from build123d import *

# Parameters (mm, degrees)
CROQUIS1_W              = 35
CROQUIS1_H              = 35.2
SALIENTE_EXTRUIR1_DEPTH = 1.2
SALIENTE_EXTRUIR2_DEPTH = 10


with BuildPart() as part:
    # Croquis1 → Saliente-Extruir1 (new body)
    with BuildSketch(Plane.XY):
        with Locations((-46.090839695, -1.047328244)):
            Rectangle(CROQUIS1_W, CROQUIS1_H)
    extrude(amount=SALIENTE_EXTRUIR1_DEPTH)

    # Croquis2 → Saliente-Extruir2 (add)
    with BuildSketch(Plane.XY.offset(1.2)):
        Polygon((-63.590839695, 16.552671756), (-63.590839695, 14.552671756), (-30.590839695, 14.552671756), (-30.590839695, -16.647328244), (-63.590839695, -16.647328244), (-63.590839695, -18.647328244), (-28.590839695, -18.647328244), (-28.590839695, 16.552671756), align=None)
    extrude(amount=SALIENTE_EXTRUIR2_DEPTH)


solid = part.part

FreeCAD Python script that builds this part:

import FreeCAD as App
import Part
import Sketcher

V = App.Vector

doc = App.newDocument("Part")
params = doc.addObject("Spreadsheet::Sheet", "Params")
for row, (alias, value) in enumerate([
    ("sketch1_width", "35 mm"),
    ("sketch1_height", "35.2 mm"),
    ("pad1_length", "1.2 mm"),
    ("sketch2_width", "33 mm"),
    ("sketch2_width2", "35 mm"),
    ("sketch2_height", "2 mm"),
    ("sketch2_height2", "31.2 mm"),
    ("pad2_length", "10 mm"),
], start=1):
    params.set(f"A{row}", alias)
    params.set(f"B{row}", "=" + value)
    params.setAlias(f"B{row}", alias)

body = doc.addObject("PartDesign::Body", "Body")

sketch1 = body.newObject("Sketcher::SketchObject", "Sketch")
sketch1.AttachmentSupport = (doc.getObject("XY_Plane"), [""])
sketch1.MapMode = "FlatFace"
sketch1.addGeometry([
    Part.LineSegment(V(-64, 17, 0), V(-64, -19, 0)),
    Part.LineSegment(V(-64, -19, 0), V(-29, -19, 0)),
    Part.LineSegment(V(-29, -19, 0), V(-29, 17, 0)),
    Part.LineSegment(V(-29, 17, 0), V(-64, 17, 0)),
], False)
sketch1.addConstraint([
    Sketcher.Constraint("Coincident", 0, 2, 1, 1),
    Sketcher.Constraint("Coincident", 1, 2, 2, 1),
    Sketcher.Constraint("Coincident", 2, 2, 3, 1),
    Sketcher.Constraint("Coincident", 3, 2, 0, 1),
    Sketcher.Constraint("Vertical", 0),
    Sketcher.Constraint("Horizontal", 1),
    Sketcher.Constraint("Vertical", 2),
    Sketcher.Constraint("Horizontal", 3),
    Sketcher.Constraint("DistanceX", 1, 1, 1, 2, 35.0),
    Sketcher.Constraint("DistanceY", 0, 2, 0, 1, 35.2),
    Sketcher.Constraint("DistanceX", 0, 2, -1, 1, 63.59084),
    Sketcher.Constraint("DistanceY", 0, 2, -1, 1, 18.647328),
])
sketch1.setExpression("Constraints[8]", "Params.sketch1_width")
sketch1.setExpression("Constraints[9]", "Params.sketch1_height")
pad1 = body.newObject("PartDesign::Pad", "Pad")
pad1.Profile = sketch1
pad1.setExpression("Length", "Params.pad1_length")

sketch2 = body.newObject("Sketcher::SketchObject", "Sketch001")
sketch2.AttachmentSupport = (doc.getObject("XY_Plane"), [""])
sketch2.MapMode = "FlatFace"
sketch2.AttachmentOffset = App.Placement(V(0, 0, 1.2), App.Rotation())
sketch2.addGeometry([
    Part.LineSegment(V(-63.6, 16.6, 0), V(-63.6, 14.6, 0)),
    Part.LineSegment(V(-63.6, 14.6, 0), V(-30.6, 14.6, 0)),
    Part.LineSegment(V(-30.6, 14.6, 0), V(-30.6, -16.6, 0)),
    Part.LineSegment(V(-30.6, -16.6, 0), V(-63.6, -16.6, 0)),
    Part.LineSegment(V(-63.6, -16.6, 0), V(-63.6, -18.6, 0)),
    Part.LineSegment(V(-63.6, -18.6, 0), V(-28.6, -18.6, 0)),
    Part.LineSegment(V(-28.6, -18.6, 0), V(-28.6, 16.6, 0)),
    Part.LineSegment(V(-28.6, 16.6, 0), V(-63.6, 16.6, 0)),
], False)
sketch2.addConstraint([
    Sketcher.Constraint("Coincident", 0, 2, 1, 1),
    Sketcher.Constraint("Coincident", 1, 2, 2, 1),
    Sketcher.Constraint("Coincident", 2, 2, 3, 1),
    Sketcher.Constraint("Coincident", 3, 2, 4, 1),
    Sketcher.Constraint("Coincident", 4, 2, 5, 1),
    Sketcher.Constraint("Coincident", 5, 2, 6, 1),
    Sketcher.Constraint("Coincident", 6, 2, 7, 1),
    Sketcher.Constraint("Coincident", 7, 2, 0, 1),
    Sketcher.Constraint("Vertical", 0),
    Sketcher.Constraint("Horizontal", 1),
    Sketcher.Constraint("Vertical", 2),
    Sketcher.Constraint("Horizontal", 3),
    Sketcher.Constraint("Vertical", 4),
    Sketcher.Constraint("Horizontal", 5),
    Sketcher.Constraint("Vertical", 6),
    Sketcher.Constraint("Horizontal", 7),
    Sketcher.Constraint("Vertical", 0, 2, 3, 2),
    Sketcher.Constraint("Equal", 0, 4),
    Sketcher.Constraint("DistanceX", 1, 1, 1, 2, 33.0),
    Sketcher.Constraint("DistanceX", 5, 1, 5, 2, 35.0),
    Sketcher.Constraint("DistanceY", 0, 2, 0, 1, 2.0),
    Sketcher.Constraint("DistanceY", 2, 2, 2, 1, 31.2),
    Sketcher.Constraint("DistanceX", 0, 2, -1, 1, 63.59084),
    Sketcher.Constraint("DistanceY", -1, 1, 0, 2, 14.552672),
])
sketch2.setExpression("Constraints[18]", "Params.sketch2_width")
sketch2.setExpression("Constraints[19]", "Params.sketch2_width2")
sketch2.setExpression("Constraints[20]", "Params.sketch2_height")
sketch2.setExpression("Constraints[21]", "Params.sketch2_height2")
pad2 = body.newObject("PartDesign::Pad", "Pad001")
pad2.Profile = sketch2
pad2.setExpression("Length", "Params.pad2_length")

doc.recompute()
